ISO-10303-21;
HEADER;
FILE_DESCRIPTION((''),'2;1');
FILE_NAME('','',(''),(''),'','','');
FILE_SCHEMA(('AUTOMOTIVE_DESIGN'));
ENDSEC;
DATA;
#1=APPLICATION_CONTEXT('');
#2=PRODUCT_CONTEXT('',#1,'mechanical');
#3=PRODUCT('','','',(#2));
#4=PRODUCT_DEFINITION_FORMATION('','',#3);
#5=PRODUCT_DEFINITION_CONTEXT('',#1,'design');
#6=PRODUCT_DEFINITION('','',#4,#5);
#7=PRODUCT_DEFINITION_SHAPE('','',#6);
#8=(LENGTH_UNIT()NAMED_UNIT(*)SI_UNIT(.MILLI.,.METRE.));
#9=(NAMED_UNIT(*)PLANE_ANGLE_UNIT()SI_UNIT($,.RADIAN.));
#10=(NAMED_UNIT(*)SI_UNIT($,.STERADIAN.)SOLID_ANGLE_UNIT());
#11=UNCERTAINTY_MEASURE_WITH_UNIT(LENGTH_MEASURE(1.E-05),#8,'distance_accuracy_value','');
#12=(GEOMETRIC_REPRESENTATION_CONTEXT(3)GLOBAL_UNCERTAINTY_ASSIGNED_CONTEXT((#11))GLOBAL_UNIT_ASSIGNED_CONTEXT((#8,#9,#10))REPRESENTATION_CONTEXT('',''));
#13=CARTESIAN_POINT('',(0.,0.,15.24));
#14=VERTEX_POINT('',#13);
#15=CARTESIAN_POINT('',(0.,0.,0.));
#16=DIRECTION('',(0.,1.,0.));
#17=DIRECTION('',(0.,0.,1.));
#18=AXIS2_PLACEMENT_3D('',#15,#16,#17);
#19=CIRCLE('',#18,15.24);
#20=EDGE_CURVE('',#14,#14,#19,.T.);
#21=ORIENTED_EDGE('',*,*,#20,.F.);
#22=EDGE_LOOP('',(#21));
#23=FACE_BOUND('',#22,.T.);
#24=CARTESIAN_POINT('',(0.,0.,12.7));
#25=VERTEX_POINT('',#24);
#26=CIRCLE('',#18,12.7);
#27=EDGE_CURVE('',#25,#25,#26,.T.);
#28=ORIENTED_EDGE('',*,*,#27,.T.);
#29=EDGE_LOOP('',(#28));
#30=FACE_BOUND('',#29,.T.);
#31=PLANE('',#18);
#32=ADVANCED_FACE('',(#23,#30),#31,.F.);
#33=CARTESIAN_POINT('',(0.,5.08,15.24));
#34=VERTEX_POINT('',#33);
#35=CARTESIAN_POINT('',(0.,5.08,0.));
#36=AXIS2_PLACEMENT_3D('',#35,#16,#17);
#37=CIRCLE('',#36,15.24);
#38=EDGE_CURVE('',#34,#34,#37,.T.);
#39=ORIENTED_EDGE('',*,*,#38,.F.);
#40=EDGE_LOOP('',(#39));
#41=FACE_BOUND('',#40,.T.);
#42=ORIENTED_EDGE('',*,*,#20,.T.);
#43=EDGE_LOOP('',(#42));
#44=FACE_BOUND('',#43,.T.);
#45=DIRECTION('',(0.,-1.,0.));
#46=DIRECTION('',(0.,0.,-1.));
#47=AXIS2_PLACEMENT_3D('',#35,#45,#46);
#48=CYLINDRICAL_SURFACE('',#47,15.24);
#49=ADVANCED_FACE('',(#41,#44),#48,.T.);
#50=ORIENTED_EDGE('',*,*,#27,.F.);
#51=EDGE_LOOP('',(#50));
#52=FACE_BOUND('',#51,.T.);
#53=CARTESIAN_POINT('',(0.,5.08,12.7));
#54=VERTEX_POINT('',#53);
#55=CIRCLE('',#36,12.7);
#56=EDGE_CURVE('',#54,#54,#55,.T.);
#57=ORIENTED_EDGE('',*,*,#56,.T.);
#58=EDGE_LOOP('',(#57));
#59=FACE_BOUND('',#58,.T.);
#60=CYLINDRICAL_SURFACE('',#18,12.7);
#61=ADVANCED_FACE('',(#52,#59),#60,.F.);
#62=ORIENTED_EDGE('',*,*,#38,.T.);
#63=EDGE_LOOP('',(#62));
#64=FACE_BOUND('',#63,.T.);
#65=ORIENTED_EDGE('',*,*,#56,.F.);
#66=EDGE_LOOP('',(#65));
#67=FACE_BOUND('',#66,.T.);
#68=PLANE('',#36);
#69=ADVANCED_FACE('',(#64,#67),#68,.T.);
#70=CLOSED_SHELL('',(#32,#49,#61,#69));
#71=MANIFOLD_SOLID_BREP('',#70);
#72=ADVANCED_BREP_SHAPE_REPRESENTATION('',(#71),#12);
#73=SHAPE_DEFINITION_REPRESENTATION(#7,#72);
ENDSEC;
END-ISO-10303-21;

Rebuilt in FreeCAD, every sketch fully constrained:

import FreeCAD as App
import Part
import Sketcher
from FreeCAD import Vector
Q = App.Units.Quantity

doc = App.newDocument("Part")
params = doc.addObject("Spreadsheet::Sheet", "Params")
for row, (alias, value) in enumerate([
    ("sketch1_diameter", "1.2 in"),
    ("pad1_length", "0.2 in"),
    ("sketch2_diameter", "1 in"),
    ("pocket1_length", "0.2 in"),
], start=1):
    params.set(f"A{row}", alias)
    params.set(f"B{row}", "=" + value)
    params.setAlias(f"B{row}", alias)

body = doc.addObject("PartDesign::Body", "Body")

# Sketch on XZ plane
sketch1 = body.newObject("Sketcher::SketchObject", "Sketch")
sketch1.AttachmentSupport = (doc.getObject("XZ_Plane"), [""])
sketch1.MapMode = "FlatFace"
sketch1.addGeometry(Part.Circle(Vector(0, 0, 0), Vector(0, 0, 1), 15), False)
sketch1.addConstraint(Sketcher.Constraint("Coincident", 0, 3, -1, 1))
sketch1.addConstraint(Sketcher.Constraint("Diameter", 0, Q("1.2 in")))
sketch1.setExpression("Constraints[1]", "Params.sketch1_diameter")
pad1 = body.newObject("PartDesign::Pad", "Pad")
pad1.Profile = sketch1
pad1.setExpression("Length", "Params.pad1_length")
pad1.Reversed = True

# Sketch on XZ plane
sketch2 = body.newObject("Sketcher::SketchObject", "Sketch001")
sketch2.AttachmentSupport = (doc.getObject("XZ_Plane"), [""])
sketch2.MapMode = "FlatFace"
sketch2.AttachmentOffset = App.Placement(Vector(0, 0, -0.2 * 25.4), App.Rotation())
sketch2.addGeometry(Part.Circle(Vector(0, 0, 0), Vector(0, 0, 1), 13), False)
sketch2.addConstraint(Sketcher.Constraint("Coincident", 0, 3, -1, 1))
sketch2.addConstraint(Sketcher.Constraint("Diameter", 0, Q("1 in")))
sketch2.setExpression("Constraints[1]", "Params.sketch2_diameter")
pocket1 = body.newObject("PartDesign::Pocket", "Pocket")
pocket1.Profile = sketch2
pocket1.setExpression("Length", "Params.pocket1_length")
pocket1.Reversed = True

doc.recompute()
